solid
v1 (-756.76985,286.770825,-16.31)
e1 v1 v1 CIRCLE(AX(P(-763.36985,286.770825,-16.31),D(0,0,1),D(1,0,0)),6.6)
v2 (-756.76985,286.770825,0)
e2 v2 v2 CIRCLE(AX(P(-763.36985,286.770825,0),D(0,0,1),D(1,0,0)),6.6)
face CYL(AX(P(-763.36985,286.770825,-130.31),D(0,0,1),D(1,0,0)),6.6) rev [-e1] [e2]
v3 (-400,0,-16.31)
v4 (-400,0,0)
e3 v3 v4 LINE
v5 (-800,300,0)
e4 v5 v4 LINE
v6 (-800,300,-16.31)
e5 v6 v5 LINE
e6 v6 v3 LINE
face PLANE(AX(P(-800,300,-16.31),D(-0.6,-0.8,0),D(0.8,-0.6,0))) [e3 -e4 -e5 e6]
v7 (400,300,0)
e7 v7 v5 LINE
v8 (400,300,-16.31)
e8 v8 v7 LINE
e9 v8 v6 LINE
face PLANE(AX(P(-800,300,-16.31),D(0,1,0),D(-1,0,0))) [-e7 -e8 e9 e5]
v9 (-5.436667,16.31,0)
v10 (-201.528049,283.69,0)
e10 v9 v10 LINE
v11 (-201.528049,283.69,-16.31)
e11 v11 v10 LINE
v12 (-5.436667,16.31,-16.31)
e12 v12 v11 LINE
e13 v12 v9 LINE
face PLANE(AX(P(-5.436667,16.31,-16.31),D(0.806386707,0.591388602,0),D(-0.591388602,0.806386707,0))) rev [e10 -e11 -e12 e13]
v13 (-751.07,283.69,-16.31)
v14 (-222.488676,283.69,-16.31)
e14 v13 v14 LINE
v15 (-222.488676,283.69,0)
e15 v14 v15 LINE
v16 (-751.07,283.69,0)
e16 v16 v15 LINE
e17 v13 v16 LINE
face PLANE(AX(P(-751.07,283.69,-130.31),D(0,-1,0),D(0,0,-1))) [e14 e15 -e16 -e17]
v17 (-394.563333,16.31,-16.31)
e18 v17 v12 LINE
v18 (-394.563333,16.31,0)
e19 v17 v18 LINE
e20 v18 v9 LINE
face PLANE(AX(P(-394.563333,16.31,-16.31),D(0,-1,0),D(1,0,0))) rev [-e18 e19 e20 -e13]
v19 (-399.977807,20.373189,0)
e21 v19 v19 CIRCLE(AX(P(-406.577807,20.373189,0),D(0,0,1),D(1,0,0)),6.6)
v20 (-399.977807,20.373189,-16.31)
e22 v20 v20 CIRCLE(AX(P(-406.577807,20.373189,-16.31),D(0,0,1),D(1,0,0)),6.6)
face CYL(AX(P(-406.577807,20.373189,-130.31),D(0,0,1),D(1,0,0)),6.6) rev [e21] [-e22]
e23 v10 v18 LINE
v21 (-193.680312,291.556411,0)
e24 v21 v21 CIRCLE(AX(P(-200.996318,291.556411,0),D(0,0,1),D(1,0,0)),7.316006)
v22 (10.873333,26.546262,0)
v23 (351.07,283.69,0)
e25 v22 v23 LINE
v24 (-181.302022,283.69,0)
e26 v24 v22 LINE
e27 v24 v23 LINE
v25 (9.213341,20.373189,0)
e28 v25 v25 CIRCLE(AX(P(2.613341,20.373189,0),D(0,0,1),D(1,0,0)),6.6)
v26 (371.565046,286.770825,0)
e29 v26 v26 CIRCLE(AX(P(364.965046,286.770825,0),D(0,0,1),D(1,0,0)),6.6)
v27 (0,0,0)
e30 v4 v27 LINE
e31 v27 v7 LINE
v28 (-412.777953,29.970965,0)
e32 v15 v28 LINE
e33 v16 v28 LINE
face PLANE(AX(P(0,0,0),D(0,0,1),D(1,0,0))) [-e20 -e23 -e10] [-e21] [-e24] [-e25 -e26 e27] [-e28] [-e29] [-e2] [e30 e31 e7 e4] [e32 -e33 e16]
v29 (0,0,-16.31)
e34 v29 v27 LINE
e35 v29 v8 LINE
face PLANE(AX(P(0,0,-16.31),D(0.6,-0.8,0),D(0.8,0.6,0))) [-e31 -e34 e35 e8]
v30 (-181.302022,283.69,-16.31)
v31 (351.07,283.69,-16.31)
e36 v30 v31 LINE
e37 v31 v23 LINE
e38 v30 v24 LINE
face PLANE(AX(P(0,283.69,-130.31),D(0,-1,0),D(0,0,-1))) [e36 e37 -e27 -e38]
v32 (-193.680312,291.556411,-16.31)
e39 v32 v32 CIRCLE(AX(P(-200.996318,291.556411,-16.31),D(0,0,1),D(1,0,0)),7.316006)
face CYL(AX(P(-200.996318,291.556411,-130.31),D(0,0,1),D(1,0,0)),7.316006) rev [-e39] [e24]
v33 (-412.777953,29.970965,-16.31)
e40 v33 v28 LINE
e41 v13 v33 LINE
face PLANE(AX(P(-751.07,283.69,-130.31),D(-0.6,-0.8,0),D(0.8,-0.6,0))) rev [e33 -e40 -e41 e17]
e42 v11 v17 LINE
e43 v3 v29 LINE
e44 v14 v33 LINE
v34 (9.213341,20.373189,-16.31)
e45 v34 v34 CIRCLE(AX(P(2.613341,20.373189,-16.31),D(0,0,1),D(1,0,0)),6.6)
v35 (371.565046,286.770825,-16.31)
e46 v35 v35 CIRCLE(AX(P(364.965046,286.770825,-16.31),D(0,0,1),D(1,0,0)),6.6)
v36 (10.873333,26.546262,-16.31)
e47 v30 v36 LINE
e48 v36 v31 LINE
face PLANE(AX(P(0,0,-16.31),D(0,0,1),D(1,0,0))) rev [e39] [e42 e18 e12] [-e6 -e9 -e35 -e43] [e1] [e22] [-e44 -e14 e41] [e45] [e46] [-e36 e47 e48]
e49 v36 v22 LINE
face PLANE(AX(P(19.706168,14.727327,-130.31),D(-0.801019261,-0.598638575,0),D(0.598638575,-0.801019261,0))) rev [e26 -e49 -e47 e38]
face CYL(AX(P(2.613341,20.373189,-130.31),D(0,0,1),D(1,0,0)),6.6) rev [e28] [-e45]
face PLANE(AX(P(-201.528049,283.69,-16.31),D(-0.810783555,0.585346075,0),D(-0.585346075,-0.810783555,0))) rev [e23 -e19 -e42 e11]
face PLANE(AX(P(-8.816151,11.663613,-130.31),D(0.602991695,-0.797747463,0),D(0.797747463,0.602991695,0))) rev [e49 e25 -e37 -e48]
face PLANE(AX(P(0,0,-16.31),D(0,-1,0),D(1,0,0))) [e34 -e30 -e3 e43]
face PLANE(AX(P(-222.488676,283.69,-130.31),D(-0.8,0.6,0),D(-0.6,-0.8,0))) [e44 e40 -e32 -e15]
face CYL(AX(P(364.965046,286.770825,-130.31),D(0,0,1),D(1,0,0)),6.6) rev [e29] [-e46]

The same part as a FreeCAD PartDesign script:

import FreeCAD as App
import Part
import Sketcher
Q = App.Units.Quantity


def add_polygon(sketch, points):
    """Adds a closed chain of lines whose ends are joined by coincident constraints."""
    first, n = sketch.GeometryCount, len(points)
    for a, b in zip(points, points[1:] + points[:1]):
        sketch.addGeometry(Part.LineSegment(App.Vector(*a, 0), App.Vector(*b, 0)), False)
    for i in range(n):
        sketch.addConstraint(Sketcher.Constraint("Coincident", first + i, 2, first + (i + 1) % n, 1))

doc = App.newDocument("Part")
body = doc.addObject("PartDesign::Body", "Body")

# Sketch on XY plane
sketch1 = body.newObject("Sketcher::SketchObject", "Sketch")
sketch1.AttachmentSupport = (doc.getObject("XY_Plane"), [""])
sketch1.MapMode = "FlatFace"
add_polygon(sketch1, [(400, 300), (-800, 300), (-400, 0), (0, 0)])  # lines 0-3
add_polygon(sketch1, [(-395, 16), (-202, 284), (-5, 16)])  # lines 4-6
sketch1.addConstraint([
    Sketcher.Constraint("Horizontal", 0),
    Sketcher.Constraint("Horizontal", 2),
    Sketcher.Constraint("Horizontal", 6),
    Sketcher.Constraint("Coincident", 2, 2, -1, 1),
    Sketcher.Constraint("Equal", 1, 3),
    Sketcher.Constraint("DistanceX", 0, 2, 0, 1, Q("1200 mm")),
    Sketcher.Constraint("DistanceX", 2, 1, 2, 2, Q("400 mm")),
    Sketcher.Constraint("Distance", 1, Q("500 mm")),
    Sketcher.Constraint("DistanceY", -1, 1, 4, 2, Q("283.69 mm")),
    Sketcher.Constraint("DistanceY", -1, 1, 5, 2, Q("16.31 mm")),
    Sketcher.Constraint("DistanceX", 6, 2, 6, 1, Q("389.126667 mm")),
    Sketcher.Constraint("DistanceX", 4, 2, -1, 1, Q("201.528049 mm")),
    Sketcher.Constraint("Distance", 4, Q("329.779753 mm")),
])
pad1 = body.newObject("PartDesign::Pad", "Pad")
pad1.Profile = sketch1
pad1.Length = 16.31
pad1.Reversed = True

# Sketch on XY plane
sketch2 = body.newObject("Sketcher::SketchObject", "Sketch001")
sketch2.AttachmentSupport = (doc.getObject("XY_Plane"), [""])
sketch2.MapMode = "FlatFace"
add_polygon(sketch2, [(-181, 284), (11, 27), (351, 284)])  # lines 0-2
add_polygon(sketch2, [(-222, 284), (-751, 284), (-413, 30)])  # lines 3-5
sketch2.addConstraint([
    Sketcher.Constraint("Horizontal", 2),
    Sketcher.Constraint("Horizontal", 3),
    Sketcher.Constraint("Perpendicular", 4, 5),
    Sketcher.Constraint("Horizontal", 2, 2, 3, 2),
    Sketcher.Constraint("DistanceX", -1, 1, 1, 2, Q("351.07 mm")),
    Sketcher.Constraint("DistanceY", -1, 1, 1, 2, Q("283.69 mm")),
    Sketcher.Constraint("DistanceX", 3, 2, -1, 1, Q("751.07 mm")),
    Sketcher.Constraint("DistanceX", 2, 2, 2, 1, Q("532.372022 mm")),
    Sketcher.Constraint("Distance", 4, Q("422.865059 mm")),
    Sketcher.Constraint("DistanceX", 3, 2, 3, 1, Q("528.581324 mm")),
    Sketcher.Constraint("DistanceY", -1, 1, 0, 2, Q("26.546262 mm")),
    Sketcher.Constraint("DistanceX", 5, 2, 0, 2, Q("233.36201 mm")),
])
pocket1 = body.newObject("PartDesign::Pocket", "Pocket")
pocket1.Profile = sketch2
pocket1.Length = 130.31

# Sketch on XY plane
sketch3 = body.newObject("Sketcher::SketchObject", "Sketch002")
sketch3.AttachmentSupport = (doc.getObject("XY_Plane"), [""])
sketch3.MapMode = "FlatFace"
sketch3.addGeometry([
    Part.Circle(App.Vector(-201, 292, 0), App.Vector(0, 0, 1), 7),  # 0
    Part.Circle(App.Vector(-763, 287, 0), App.Vector(0, 0, 1), 7),  # 1
    Part.Circle(App.Vector(365, 287, 0), App.Vector(0, 0, 1), 7),  # 2
    Part.Circle(App.Vector(3, 20, 0), App.Vector(0, 0, 1), 7),  # 3
    Part.Circle(App.Vector(-407, 20, 0), App.Vector(0, 0, 1), 7),  # 4
], False)
sketch3.addConstraint([
    Sketcher.Constraint("Equal", 1, 2),
    Sketcher.Constraint("Equal", 2, 3),
    Sketcher.Constraint("Equal", 3, 4),
    Sketcher.Constraint("Horizontal", 1, 3, 2, 3),
    Sketcher.Constraint("Horizontal", 3, 3, 4, 3),
    Sketcher.Constraint("Diameter", 1, Q("13.2 mm")),
    Sketcher.Constraint("Diameter", 0, Q("14.632012 mm")),
    Sketcher.Constraint("DistanceY", -1, 1, 0, 3, Q("291.556411 mm")),
    Sketcher.Constraint("DistanceX", 1, 3, -1, 1, Q("763.36985 mm")),
    Sketcher.Constraint("DistanceX", -1, 1, 3, 3, Q("2.613341 mm")),
    Sketcher.Constraint("DistanceY", -1, 1, 3, 3, Q("20.373189 mm")),
    Sketcher.Constraint("DistanceX", 0, 3, 3, 3, Q("203.609658 mm")),
    Sketcher.Constraint("DistanceX", 4, 3, 0, 3, Q("205.58149 mm")),
    Sketcher.Constraint("DistanceY", -1, 1, 1, 3, Q("286.770825 mm")),
    Sketcher.Constraint("DistanceX", -1, 1, 2, 3, Q("364.965046 mm")),
])
pocket2 = body.newObject("PartDesign::Pocket", "Pocket001")
pocket2.Profile = sketch3
pocket2.Length = 130.31

doc.recompute()
